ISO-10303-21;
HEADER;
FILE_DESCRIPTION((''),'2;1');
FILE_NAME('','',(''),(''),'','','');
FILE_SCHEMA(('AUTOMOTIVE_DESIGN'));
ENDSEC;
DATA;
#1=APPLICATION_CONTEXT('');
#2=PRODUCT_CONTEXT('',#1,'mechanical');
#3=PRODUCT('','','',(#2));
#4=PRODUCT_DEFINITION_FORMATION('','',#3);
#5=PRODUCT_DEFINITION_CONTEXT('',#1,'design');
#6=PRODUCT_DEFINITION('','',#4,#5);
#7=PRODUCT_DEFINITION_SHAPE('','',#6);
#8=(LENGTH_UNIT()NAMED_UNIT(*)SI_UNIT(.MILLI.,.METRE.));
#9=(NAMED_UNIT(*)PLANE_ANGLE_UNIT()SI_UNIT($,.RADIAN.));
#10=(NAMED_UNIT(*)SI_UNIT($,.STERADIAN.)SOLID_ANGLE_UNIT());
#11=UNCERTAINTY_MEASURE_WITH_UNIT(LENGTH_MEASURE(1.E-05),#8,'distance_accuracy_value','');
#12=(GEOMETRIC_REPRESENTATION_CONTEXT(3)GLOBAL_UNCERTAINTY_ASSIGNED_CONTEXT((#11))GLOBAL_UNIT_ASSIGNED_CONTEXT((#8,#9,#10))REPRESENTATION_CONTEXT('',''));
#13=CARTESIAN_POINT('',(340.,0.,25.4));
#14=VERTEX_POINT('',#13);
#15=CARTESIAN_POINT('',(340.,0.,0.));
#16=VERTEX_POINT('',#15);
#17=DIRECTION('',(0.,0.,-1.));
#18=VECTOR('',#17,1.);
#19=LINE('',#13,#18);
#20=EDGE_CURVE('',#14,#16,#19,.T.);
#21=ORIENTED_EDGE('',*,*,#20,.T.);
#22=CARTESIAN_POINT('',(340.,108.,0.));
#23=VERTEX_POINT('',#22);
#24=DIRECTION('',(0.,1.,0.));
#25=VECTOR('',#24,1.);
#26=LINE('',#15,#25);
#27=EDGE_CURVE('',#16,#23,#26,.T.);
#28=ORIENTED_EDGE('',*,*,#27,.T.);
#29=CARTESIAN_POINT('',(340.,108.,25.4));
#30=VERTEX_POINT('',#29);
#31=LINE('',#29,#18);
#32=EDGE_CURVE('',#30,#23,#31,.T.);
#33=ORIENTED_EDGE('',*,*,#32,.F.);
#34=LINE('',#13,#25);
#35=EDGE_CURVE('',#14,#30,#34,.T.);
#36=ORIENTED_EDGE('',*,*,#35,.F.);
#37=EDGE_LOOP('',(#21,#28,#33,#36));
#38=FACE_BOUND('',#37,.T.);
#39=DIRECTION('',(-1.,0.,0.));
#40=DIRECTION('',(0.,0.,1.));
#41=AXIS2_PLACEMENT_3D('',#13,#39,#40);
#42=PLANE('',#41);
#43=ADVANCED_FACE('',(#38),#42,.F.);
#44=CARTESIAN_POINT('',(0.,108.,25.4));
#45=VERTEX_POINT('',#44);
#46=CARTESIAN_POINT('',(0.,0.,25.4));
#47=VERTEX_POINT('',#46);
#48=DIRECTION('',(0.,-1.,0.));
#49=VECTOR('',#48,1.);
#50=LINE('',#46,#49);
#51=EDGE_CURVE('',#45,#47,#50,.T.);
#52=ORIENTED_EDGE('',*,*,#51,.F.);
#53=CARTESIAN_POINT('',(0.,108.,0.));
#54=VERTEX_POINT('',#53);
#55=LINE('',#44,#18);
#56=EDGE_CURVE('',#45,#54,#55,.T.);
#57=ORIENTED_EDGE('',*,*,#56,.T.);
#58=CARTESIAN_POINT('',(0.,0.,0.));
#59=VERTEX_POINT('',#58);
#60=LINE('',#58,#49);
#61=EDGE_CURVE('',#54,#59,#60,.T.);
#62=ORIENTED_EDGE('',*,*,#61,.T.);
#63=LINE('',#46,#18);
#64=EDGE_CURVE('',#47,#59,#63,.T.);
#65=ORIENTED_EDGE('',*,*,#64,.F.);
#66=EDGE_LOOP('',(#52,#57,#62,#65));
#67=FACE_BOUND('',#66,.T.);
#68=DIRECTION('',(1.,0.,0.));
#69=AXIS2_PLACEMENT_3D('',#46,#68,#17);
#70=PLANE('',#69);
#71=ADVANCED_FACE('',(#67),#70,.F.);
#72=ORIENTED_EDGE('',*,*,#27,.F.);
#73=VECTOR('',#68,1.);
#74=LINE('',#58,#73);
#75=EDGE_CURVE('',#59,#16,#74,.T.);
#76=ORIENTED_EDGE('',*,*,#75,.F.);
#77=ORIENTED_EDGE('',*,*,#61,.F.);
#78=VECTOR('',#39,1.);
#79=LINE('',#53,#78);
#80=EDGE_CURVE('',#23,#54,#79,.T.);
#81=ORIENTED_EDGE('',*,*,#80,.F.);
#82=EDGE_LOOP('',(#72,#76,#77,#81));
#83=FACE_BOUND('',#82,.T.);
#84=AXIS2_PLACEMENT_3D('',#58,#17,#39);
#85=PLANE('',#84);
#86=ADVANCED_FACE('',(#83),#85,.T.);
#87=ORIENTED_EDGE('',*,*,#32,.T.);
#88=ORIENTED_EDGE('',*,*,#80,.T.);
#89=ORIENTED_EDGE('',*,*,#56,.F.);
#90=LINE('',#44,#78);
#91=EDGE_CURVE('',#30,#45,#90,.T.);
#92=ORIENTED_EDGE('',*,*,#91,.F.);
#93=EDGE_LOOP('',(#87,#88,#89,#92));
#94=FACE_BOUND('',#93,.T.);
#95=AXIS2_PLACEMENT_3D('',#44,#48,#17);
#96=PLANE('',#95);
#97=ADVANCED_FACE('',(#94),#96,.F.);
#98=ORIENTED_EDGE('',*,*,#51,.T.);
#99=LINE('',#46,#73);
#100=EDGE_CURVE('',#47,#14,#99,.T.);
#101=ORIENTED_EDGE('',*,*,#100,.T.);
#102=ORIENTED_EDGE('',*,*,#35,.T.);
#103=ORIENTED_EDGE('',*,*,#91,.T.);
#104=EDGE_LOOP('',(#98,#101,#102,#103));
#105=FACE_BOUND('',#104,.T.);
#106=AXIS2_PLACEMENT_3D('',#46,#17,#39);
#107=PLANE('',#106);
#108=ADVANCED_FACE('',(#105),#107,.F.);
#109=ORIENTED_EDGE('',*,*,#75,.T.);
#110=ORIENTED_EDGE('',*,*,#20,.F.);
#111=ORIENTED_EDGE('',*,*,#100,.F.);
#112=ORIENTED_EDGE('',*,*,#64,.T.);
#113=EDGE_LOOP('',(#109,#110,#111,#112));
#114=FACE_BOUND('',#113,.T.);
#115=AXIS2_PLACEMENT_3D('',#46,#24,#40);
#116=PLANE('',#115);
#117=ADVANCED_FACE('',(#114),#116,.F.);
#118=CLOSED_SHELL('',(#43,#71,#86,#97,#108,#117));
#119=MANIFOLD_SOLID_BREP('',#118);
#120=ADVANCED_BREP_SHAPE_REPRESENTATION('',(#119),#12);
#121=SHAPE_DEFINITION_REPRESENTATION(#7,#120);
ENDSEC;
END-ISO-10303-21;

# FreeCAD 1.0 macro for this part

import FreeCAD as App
import Part
import Sketcher
Q = App.Units.Quantity


def add_polygon(sketch, points):
    """Adds a closed chain of lines whose ends are joined by coincident constraints."""
    first, n = sketch.GeometryCount, len(points)
    for a, b in zip(points, points[1:] + points[:1]):
        sketch.addGeometry(Part.LineSegment(App.Vector(*a, 0), App.Vector(*b, 0)), False)
    for i in range(n):
        sketch.addConstraint(Sketcher.Constraint("Coincident", first + i, 2, first + (i + 1) % n, 1))

doc = App.newDocument("Part")
body = doc.addObject("PartDesign::Body", "Body")

# Sketch on XY plane
sketch1 = doc.addObject("Sketcher::SketchObject", "Sketch")
body.addObject(sketch1)
sketch1.AttachmentSupport = (doc.XY_Plane, [""])
sketch1.MapMode = "FlatFace"
add_polygon(sketch1, [(0, 108), (0, 0), (340, 0), (340, 108)])  # lines 0-3
sketch1.addConstraint([
    Sketcher.Constraint("Vertical", 0),
    Sketcher.Constraint("Horizontal", 1),
    Sketcher.Constraint("Vertical", 2),
    Sketcher.Constraint("Horizontal", 3),
    Sketcher.Constraint("Coincident", 0, 2, -1, 1),
    Sketcher.Constraint("DistanceX", 1, 1, 1, 2, Q("340 mm")),
    Sketcher.Constraint("DistanceY", 0, 2, 0, 1, Q("108 mm")),
])
pad1 = doc.addObject("PartDesign::Pad", "Pad")
body.addObject(pad1)
pad1.Profile = sketch1
pad1.Length = 25.4

doc.recompute()
